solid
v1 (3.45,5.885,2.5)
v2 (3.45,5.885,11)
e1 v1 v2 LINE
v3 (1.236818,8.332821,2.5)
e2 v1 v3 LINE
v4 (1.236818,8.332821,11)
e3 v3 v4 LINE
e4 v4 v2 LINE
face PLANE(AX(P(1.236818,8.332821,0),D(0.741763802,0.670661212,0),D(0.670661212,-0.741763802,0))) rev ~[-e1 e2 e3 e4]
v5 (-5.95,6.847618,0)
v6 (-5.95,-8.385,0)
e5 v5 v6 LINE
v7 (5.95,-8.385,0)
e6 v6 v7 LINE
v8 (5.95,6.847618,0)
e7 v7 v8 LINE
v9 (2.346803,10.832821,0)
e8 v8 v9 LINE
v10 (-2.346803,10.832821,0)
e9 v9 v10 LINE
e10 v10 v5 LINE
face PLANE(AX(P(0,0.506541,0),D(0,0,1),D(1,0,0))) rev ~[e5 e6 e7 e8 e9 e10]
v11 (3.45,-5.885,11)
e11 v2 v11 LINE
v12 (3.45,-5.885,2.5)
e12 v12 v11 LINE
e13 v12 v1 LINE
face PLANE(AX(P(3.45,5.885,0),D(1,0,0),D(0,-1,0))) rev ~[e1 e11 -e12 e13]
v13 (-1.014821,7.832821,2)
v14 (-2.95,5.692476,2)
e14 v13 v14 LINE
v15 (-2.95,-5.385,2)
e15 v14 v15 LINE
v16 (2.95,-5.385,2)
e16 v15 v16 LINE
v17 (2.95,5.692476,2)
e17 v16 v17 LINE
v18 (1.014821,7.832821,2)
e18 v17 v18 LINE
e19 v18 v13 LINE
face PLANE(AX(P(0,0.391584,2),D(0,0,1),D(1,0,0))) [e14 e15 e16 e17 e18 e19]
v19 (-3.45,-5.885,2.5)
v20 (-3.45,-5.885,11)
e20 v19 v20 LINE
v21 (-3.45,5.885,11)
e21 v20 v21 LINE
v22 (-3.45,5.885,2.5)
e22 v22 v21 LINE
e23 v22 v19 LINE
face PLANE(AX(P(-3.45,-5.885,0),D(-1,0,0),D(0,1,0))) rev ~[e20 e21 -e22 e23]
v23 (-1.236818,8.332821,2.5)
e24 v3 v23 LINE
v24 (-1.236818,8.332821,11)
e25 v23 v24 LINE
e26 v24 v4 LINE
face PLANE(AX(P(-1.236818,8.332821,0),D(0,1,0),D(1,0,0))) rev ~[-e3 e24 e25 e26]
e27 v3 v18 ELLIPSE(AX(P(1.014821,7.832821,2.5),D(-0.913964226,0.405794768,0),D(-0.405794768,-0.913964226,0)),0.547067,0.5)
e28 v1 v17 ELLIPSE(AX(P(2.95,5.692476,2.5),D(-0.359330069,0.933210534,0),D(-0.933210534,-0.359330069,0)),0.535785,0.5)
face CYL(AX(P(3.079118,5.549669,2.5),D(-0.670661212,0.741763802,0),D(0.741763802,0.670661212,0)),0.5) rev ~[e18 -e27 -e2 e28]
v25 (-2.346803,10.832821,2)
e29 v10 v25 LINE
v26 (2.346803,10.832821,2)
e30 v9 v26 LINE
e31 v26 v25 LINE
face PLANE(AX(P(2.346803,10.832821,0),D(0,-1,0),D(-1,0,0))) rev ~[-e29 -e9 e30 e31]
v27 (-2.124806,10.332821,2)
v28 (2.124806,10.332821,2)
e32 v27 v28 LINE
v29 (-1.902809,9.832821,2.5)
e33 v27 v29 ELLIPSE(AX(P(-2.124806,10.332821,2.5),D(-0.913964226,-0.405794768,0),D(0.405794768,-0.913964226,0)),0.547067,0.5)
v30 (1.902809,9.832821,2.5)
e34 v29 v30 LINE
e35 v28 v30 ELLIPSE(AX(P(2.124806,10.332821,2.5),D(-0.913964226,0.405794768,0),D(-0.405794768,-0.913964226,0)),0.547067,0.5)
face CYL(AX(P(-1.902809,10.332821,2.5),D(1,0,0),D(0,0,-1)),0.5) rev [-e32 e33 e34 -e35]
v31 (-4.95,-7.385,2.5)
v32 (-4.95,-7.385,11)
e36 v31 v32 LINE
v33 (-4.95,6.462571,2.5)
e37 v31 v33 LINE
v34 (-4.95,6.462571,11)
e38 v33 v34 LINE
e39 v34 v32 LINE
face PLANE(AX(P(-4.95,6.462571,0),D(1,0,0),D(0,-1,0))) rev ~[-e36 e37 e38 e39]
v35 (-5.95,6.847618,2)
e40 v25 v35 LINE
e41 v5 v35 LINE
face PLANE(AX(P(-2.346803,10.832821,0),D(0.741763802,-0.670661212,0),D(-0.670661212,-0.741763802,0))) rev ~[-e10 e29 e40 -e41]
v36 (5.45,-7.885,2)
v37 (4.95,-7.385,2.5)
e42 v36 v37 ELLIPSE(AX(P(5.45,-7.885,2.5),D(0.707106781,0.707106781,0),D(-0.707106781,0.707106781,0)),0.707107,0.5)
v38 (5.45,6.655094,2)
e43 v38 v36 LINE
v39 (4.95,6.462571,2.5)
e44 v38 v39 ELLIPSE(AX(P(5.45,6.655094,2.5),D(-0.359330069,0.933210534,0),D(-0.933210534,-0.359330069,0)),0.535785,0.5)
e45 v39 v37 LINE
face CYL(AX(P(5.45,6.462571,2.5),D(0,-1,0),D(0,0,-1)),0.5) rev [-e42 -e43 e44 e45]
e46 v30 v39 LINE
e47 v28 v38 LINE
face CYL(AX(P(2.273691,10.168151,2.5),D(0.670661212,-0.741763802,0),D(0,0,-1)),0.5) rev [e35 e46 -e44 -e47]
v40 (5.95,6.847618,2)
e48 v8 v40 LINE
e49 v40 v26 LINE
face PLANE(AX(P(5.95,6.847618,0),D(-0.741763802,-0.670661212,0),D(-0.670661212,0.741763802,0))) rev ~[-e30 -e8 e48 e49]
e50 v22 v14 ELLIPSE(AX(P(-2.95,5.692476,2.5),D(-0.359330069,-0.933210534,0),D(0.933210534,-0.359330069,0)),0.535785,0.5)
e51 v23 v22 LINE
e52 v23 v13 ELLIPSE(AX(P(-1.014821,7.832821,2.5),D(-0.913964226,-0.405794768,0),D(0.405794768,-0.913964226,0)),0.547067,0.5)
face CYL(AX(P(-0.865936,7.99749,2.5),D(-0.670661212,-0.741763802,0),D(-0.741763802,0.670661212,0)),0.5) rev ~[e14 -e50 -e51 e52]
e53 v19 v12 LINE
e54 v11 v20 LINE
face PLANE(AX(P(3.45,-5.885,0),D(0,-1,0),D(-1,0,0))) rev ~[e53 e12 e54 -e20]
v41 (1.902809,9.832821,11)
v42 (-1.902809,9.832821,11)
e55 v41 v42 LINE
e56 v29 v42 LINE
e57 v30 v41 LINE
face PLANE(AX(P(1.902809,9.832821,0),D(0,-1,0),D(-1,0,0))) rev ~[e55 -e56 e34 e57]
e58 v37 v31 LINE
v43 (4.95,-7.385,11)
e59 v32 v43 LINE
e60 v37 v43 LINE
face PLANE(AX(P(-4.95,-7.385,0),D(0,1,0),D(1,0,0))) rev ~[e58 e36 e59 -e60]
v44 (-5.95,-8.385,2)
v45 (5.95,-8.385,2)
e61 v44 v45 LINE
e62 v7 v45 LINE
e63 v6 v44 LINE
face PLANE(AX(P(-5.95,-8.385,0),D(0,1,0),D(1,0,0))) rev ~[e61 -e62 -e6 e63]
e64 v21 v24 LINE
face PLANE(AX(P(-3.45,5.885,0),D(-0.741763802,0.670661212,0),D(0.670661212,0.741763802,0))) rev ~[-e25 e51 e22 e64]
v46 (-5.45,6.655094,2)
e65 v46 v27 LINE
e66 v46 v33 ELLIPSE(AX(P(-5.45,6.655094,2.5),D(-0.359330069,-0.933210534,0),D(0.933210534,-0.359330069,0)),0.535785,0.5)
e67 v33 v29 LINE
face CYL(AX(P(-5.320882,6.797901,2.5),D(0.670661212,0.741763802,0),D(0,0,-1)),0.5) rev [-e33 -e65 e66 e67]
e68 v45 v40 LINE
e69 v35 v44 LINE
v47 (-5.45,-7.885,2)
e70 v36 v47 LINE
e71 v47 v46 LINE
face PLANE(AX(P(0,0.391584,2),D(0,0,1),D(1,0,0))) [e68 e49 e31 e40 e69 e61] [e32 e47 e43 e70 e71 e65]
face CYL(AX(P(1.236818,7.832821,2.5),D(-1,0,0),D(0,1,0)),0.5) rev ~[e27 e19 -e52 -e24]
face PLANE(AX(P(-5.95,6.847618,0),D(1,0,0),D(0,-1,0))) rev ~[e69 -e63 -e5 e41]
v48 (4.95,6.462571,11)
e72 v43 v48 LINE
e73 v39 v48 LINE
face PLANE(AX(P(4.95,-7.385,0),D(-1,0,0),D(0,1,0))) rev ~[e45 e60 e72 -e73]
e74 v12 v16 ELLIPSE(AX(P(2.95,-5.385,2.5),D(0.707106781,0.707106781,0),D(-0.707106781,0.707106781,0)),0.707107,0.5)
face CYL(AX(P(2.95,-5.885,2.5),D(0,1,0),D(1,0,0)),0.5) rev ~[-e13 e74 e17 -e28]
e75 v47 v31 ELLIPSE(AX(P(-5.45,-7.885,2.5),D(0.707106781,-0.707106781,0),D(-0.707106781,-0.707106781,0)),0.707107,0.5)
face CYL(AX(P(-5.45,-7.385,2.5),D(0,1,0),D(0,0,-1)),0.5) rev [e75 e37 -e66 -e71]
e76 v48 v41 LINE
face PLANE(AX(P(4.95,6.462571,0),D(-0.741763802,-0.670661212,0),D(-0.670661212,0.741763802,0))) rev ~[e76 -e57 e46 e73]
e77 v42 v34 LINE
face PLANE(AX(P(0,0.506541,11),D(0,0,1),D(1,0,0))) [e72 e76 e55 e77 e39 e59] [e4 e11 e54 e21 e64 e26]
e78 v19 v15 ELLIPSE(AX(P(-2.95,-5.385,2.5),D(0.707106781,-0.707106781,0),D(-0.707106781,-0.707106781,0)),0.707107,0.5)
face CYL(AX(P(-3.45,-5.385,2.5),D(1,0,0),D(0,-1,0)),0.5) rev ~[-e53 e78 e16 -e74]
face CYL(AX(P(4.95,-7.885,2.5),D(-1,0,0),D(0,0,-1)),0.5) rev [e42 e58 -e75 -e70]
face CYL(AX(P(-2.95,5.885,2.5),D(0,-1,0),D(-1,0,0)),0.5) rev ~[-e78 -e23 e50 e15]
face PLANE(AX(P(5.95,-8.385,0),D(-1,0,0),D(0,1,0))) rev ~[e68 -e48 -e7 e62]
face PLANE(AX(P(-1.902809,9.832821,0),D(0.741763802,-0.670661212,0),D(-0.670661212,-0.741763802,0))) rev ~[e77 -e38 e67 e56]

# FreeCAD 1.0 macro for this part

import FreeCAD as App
import Part
import Sketcher
from FreeCAD import Vector
Q = App.Units.Quantity


def edges_at(feature, points):
    """Names of the edges that pass closest to the given points."""
    edges = feature.Shape.Edges
    near = lambda p: min(range(len(edges)), key=lambda i: edges[i].distToShape(Part.Vertex(*p))[0])
    return sorted({f"Edge{near(p) + 1}" for p in points})

doc = App.newDocument("Part")
body = doc.addObject("PartDesign::Body", "Body")

# Sketch on XY plane
sketch1 = body.newObject("Sketcher::SketchObject", "Sketch")
sketch1.AttachmentSupport = (doc.getObject("XY_Plane"), [""])
sketch1.MapMode = "FlatFace"
sketch1.addGeometry([
    Part.LineSegment(Vector(-2.346803, 10.832821, 0), Vector(-5.95, 6.847618, 0)),  # 0
    Part.LineSegment(Vector(-5.95, 6.847618, 0), Vector(-5.95, -8.385, 0)),  # 1
    Part.LineSegment(Vector(-5.95, -8.385, 0), Vector(5.95, -8.385, 0)),  # 2
    Part.LineSegment(Vector(5.95, -8.385, 0), Vector(5.95, 6.847618, 0)),  # 3
    Part.LineSegment(Vector(5.95, 6.847618, 0), Vector(2.346803, 10.832821, 0)),  # 4
    Part.LineSegment(Vector(2.346803, 10.832821, 0), Vector(-2.346803, 10.832821, 0)),  # 5
], False)
sketch1.addConstraint([
    Sketcher.Constraint("Coincident", 0, 2, 1, 1),
    Sketcher.Constraint("Coincident", 1, 2, 2, 1),
    Sketcher.Constraint("Coincident", 2, 2, 3, 1),
    Sketcher.Constraint("Coincident", 3, 2, 4, 1),
    Sketcher.Constraint("Coincident", 4, 2, 5, 1),
    Sketcher.Constraint("Coincident", 5, 2, 0, 1),
    Sketcher.Constraint("Vertical", 1),
    Sketcher.Constraint("Horizontal", 2),
    Sketcher.Constraint("Vertical", 3),
    Sketcher.Constraint("Horizontal", 5),
    Sketcher.Constraint("Symmetric", 0, 2, 3, 2, -2),
    Sketcher.Constraint("Equal", 0, 4),
    Sketcher.Constraint("DistanceX", 2, 1, 2, 2, Q("11.9 mm")),
    Sketcher.Constraint("DistanceY", 1, 2, -1, 1, Q("8.385 mm")),
    Sketcher.Constraint("DistanceX", 5, 2, 5, 1, Q("4.693607 mm")),
    Sketcher.Constraint("DistanceY", 1, 2, 1, 1, Q("15.232618 mm")),
    Sketcher.Constraint("DistanceY", -1, 1, 4, 2, Q("10.832821 mm")),
])
pad1 = body.newObject("PartDesign::Pad", "Pad")
pad1.Profile = sketch1
pad1.Length = 2

# Sketch on XY plane
sketch2 = body.newObject("Sketcher::SketchObject", "Sketch001")
sketch2.AttachmentSupport = (doc.getObject("XY_Plane"), [""])
sketch2.MapMode = "FlatFace"
sketch2.addGeometry([
    Part.LineSegment(Vector(-1.902809, 9.832821, 0), Vector(-4.95, 6.462571, 0)),  # 0
    Part.LineSegment(Vector(-4.95, 6.462571, 0), Vector(-4.95, -7.385, 0)),  # 1
    Part.LineSegment(Vector(-4.95, -7.385, 0), Vector(4.95, -7.385, 0)),  # 2
    Part.LineSegment(Vector(4.95, -7.385, 0), Vector(4.95, 6.462571, 0)),  # 3
    Part.LineSegment(Vector(4.95, 6.462571, 0), Vector(1.902809, 9.832821, 0)),  # 4
    Part.LineSegment(Vector(1.902809, 9.832821, 0), Vector(-1.902809, 9.832821, 0)),  # 5
    Part.LineSegment(Vector(-1.236818, 8.332821, 0), Vector(1.236818, 8.332821, 0)),  # 6
    Part.LineSegment(Vector(1.236818, 8.332821, 0), Vector(3.45, 5.885, 0)),  # 7
    Part.LineSegment(Vector(3.45, 5.885, 0), Vector(3.45, -5.885, 0)),  # 8
    Part.LineSegment(Vector(3.45, -5.885, 0), Vector(-3.45, -5.885, 0)),  # 9
    Part.LineSegment(Vector(-3.45, -5.885, 0), Vector(-3.45, 5.885, 0)),  # 10
    Part.LineSegment(Vector(-3.45, 5.885, 0), Vector(-1.236818, 8.332821, 0)),  # 11
], False)
sketch2.addConstraint([
    Sketcher.Constraint("Coincident", 0, 2, 1, 1),
    Sketcher.Constraint("Coincident", 1, 2, 2, 1),
    Sketcher.Constraint("Coincident", 2, 2, 3, 1),
    Sketcher.Constraint("Coincident", 3, 2, 4, 1),
    Sketcher.Constraint("Coincident", 4, 2, 5, 1),
    Sketcher.Constraint("Coincident", 5, 2, 0, 1),
    Sketcher.Constraint("Coincident", 6, 2, 7, 1),
    Sketcher.Constraint("Coincident", 7, 2, 8, 1),
    Sketcher.Constraint("Coincident", 8, 2, 9, 1),
    Sketcher.Constraint("Coincident", 9, 2, 10, 1),
    Sketcher.Constraint("Coincident", 10, 2, 11, 1),
    Sketcher.Constraint("Coincident", 11, 2, 6, 1),
    Sketcher.Constraint("Vertical", 1),
    Sketcher.Constraint("Horizontal", 2),
    Sketcher.Constraint("Vertical", 3),
    Sketcher.Constraint("Horizontal", 5),
    Sketcher.Constraint("Horizontal", 6),
    Sketcher.Constraint("Vertical", 8),
    Sketcher.Constraint("Horizontal", 9),
    Sketcher.Constraint("Vertical", 10),
    Sketcher.Constraint("Symmetric", 7, 2, 9, 2, -1, 1),
    Sketcher.Constraint("Symmetric", 0, 2, 3, 2, -2),
    Sketcher.Constraint("Parallel", 4, 7),
    Sketcher.Constraint("Parallel", 0, 11),
    Sketcher.Constraint("Horizontal", 7, 2, 10, 2),
    Sketcher.Constraint("Equal", 0, 4),
    Sketcher.Constraint("DistanceX", 2, 1, 2, 2, Q("9.9 mm")),
    Sketcher.Constraint("DistanceX", 9, 2, 9, 1, Q("6.9 mm")),
    Sketcher.Constraint("Distance", 7, Q("3.3 mm")),
    Sketcher.Constraint("DistanceY", 8, 2, 8, 1, Q("11.77 mm")),
    Sketcher.Constraint("DistanceY", 6, 2, 4, 2, Q("1.5 mm")),
    Sketcher.Constraint("DistanceY", 2, 2, 8, 2, Q("1.5 mm")),
    Sketcher.Constraint("DistanceX", 5, 2, 5, 1, Q("3.805618 mm")),
    Sketcher.Constraint("DistanceY", 1, 2, 1, 1, Q("13.847571 mm")),
])
pad2 = body.newObject("PartDesign::Pad", "Pad001")
pad2.Profile = sketch2
pad2.Length = 11
doc.recompute()

fillet = body.newObject("PartDesign::Fillet", "Fillet")
fillet.Base = (pad2, edges_at(pad2, [
    (-3.45, 0, 2),
    (-2.343, 7.109, 2),
    (0, 8.333, 2),
    (2.343, 7.109, 2),
    (3.45, 0, 2),
    (0, -5.885, 2),
    (0, -7.385, 2),
    (4.95, -0.461, 2),
    (3.426, 8.148, 2),
    (0, 9.833, 2),
    (-3.426, 8.148, 2),
    (-4.95, -0.461, 2),
]))
fillet.Radius = 0.5

doc.recompute()
